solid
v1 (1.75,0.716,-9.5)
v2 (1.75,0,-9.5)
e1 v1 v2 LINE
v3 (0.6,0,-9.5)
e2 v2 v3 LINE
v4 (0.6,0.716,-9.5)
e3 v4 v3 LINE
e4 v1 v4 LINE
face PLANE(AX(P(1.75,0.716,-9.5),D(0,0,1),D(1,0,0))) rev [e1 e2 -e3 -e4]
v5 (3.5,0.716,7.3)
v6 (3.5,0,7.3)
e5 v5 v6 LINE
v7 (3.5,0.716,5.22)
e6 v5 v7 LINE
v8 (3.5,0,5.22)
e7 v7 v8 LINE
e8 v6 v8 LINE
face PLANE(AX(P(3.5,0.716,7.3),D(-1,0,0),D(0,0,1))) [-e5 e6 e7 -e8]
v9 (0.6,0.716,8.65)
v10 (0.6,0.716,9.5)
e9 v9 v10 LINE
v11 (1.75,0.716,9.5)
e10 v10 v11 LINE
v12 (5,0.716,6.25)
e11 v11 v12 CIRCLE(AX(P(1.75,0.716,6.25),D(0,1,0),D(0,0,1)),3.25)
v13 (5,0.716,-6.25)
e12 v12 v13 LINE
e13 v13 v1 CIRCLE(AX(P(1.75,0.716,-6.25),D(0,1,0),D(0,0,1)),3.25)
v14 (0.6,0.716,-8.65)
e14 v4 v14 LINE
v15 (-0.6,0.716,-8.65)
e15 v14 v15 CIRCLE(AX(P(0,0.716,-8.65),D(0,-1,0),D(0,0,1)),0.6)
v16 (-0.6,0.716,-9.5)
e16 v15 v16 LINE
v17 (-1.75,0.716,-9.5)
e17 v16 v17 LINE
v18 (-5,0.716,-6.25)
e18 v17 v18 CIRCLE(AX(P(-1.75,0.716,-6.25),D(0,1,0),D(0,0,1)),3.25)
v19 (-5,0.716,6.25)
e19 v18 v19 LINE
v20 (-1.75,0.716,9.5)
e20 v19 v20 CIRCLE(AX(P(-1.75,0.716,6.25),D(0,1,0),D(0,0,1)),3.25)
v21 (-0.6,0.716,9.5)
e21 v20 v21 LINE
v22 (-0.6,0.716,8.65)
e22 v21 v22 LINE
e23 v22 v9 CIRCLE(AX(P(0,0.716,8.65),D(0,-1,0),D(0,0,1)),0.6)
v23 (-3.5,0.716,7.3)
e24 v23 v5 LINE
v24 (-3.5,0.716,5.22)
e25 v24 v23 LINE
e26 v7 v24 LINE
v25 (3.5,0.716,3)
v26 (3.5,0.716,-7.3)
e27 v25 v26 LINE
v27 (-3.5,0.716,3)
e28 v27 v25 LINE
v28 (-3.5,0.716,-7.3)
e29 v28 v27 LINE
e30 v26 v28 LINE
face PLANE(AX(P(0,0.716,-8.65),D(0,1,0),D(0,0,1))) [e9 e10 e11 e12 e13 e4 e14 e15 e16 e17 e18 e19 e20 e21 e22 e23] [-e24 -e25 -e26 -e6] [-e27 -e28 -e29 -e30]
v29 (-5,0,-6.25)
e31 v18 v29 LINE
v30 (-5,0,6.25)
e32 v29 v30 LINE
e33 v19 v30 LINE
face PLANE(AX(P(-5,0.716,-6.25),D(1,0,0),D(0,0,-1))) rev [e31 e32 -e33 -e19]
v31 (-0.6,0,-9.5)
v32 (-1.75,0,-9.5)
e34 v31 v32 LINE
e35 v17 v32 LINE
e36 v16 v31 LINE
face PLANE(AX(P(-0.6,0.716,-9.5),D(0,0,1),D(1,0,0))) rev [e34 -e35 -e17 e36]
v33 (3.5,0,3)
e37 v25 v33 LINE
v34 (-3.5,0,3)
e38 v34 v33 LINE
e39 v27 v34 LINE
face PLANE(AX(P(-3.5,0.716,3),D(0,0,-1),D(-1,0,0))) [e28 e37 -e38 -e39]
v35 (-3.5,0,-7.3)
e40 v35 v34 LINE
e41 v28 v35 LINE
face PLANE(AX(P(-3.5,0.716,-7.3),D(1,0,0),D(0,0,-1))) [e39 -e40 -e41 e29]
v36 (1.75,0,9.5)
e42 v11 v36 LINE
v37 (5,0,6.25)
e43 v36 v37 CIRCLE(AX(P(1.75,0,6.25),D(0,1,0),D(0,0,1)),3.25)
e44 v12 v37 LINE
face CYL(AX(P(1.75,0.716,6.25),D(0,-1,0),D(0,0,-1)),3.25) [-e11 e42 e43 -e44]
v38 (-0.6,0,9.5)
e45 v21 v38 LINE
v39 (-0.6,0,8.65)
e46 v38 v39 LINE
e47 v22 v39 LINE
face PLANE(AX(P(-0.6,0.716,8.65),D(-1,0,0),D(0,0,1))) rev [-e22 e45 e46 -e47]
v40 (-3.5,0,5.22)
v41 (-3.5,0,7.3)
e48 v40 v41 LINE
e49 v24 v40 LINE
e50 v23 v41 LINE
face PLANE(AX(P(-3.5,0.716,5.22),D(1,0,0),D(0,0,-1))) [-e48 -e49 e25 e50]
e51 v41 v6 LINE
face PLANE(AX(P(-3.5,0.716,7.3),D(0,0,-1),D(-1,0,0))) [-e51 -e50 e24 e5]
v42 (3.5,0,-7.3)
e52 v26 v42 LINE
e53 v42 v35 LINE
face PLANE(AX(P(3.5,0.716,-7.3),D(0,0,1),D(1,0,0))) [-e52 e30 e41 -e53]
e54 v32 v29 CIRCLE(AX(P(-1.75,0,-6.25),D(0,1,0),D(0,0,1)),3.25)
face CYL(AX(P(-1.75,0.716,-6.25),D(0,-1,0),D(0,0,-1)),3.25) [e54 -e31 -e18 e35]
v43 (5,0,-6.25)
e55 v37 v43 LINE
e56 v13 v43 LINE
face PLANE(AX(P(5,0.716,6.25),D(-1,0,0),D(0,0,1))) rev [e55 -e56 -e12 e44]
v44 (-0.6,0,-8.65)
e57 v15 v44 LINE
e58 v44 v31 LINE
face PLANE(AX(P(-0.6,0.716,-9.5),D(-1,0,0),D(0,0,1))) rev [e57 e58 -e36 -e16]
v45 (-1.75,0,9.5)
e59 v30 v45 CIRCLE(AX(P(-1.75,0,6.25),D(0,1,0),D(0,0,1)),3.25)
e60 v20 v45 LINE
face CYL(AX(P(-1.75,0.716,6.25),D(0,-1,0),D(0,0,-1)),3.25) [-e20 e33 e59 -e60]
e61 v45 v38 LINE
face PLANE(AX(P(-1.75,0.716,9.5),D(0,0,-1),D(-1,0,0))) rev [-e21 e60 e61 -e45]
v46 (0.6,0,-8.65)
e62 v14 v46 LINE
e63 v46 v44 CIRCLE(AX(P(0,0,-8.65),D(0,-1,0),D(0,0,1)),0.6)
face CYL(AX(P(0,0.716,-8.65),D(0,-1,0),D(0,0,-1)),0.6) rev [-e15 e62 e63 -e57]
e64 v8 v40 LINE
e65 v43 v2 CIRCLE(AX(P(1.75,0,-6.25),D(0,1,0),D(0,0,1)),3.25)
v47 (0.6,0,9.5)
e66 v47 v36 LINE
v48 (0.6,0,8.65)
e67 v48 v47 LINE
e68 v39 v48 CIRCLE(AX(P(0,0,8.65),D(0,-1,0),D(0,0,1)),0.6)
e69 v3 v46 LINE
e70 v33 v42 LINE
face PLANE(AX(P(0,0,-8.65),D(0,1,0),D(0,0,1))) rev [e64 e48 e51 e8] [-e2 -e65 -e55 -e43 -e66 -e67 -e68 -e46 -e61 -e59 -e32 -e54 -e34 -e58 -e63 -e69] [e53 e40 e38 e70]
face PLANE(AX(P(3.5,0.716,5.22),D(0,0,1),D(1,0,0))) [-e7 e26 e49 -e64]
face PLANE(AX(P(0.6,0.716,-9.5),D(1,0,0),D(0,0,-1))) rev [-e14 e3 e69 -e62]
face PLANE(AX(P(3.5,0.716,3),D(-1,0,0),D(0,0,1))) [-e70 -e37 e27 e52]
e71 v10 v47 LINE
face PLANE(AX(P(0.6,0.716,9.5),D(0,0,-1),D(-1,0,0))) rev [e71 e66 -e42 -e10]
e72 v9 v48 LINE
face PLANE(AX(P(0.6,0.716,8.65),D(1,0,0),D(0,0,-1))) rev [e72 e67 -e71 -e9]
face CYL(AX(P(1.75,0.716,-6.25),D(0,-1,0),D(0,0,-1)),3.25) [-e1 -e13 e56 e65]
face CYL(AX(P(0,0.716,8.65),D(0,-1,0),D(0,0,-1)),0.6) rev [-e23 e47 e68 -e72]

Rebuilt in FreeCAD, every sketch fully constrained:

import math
import FreeCAD as App
import Part
import Sketcher

V = App.Vector
Q = App.Units.Quantity


def add_polygon(sketch, points):
    """Adds a closed chain of lines whose ends are joined by coincident constraints."""
    first, n = sketch.GeometryCount, len(points)
    for a, b in zip(points, points[1:] + points[:1]):
        sketch.addGeometry(Part.LineSegment(App.Vector(*a, 0), App.Vector(*b, 0)), False)
    for i in range(n):
        sketch.addConstraint(Sketcher.Constraint("Coincident", first + i, 2, first + (i + 1) % n, 1))

doc = App.newDocument("Part")
params = doc.addObject("Spreadsheet::Sheet", "Params")
for row, (alias, value) in enumerate([
    ("sketch1_radius", "0.6 mm"),
    ("sketch1_width", "7 mm"),
    ("sketch1_radius2", "3.25 mm"),
    ("sketch1_height", "12.5 mm"),
    ("sketch1_height2", "10.3 mm"),
    ("pad1_length", "0.716 mm"),
], start=1):
    params.set(f"A{row}", alias)
    params.set(f"B{row}", "=" + value)
    params.setAlias(f"B{row}", alias)

body = doc.addObject("PartDesign::Body", "Body")

sketch1 = doc.addObject("Sketcher::SketchObject", "Sketch")
body.addObject(sketch1)
sketch1.AttachmentSupport = (doc.XZ_Plane, [""])
sketch1.MapMode = "FlatFace"
sketch1.addGeometry(Part.LineSegment(V(-0.6, -9.5, 0), V(-1.8, -9.5, 0)), False)
sketch1.addGeometry(Part.ArcOfCircle(Part.Circle(V(-1.8, -6.2, 0), V(0, 0, 1), 3.2), math.radians(180), math.radians(270)), False)
sketch1.addGeometry(Part.LineSegment(V(-5, -6.2, 0), V(-5, 6.2, 0)), False)
sketch1.addGeometry(Part.ArcOfCircle(Part.Circle(V(-1.8, 6.2, 0), V(0, 0, 1), 3.2), math.radians(90), math.radians(180)), False)
sketch1.addGeometry(Part.LineSegment(V(-1.8, 9.5, 0), V(-0.6, 9.5, 0)), False)
sketch1.addGeometry(Part.LineSegment(V(-0.6, 9.5, 0), V(-0.6, 8.7, 0)), False)
sketch1.addGeometry(Part.ArcOfCircle(Part.Circle(V(0, 8.7, 0), V(0, 0, 1), 0.6), math.radians(180), math.radians(360)), False)
sketch1.addGeometry(Part.LineSegment(V(0.6, 8.7, 0), V(0.6, 9.5, 0)), False)
sketch1.addGeometry(Part.LineSegment(V(0.6, 9.5, 0), V(1.8, 9.5, 0)), False)
sketch1.addGeometry(Part.ArcOfCircle(Part.Circle(V(1.8, 6.2, 0), V(0, 0, 1), 3.2), math.radians(0), math.radians(90)), False)
sketch1.addGeometry(Part.LineSegment(V(5, 6.2, 0), V(5, -6.2, 0)), False)
sketch1.addGeometry(Part.ArcOfCircle(Part.Circle(V(1.8, -6.2, 0), V(0, 0, 1), 3.2), math.radians(-90), math.radians(0)), False)
sketch1.addGeometry(Part.LineSegment(V(1.8, -9.5, 0), V(0.6, -9.5, 0)), False)
sketch1.addGeometry(Part.LineSegment(V(0.6, -9.5, 0), V(0.6, -8.7, 0)), False)
sketch1.addGeometry(Part.ArcOfCircle(Part.Circle(V(0, -8.7, 0), V(0, 0, 1), 0.6), math.radians(0), math.radians(180)), False)
sketch1.addGeometry(Part.LineSegment(V(-0.6, -8.7, 0), V(-0.6, -9.5, 0)), False)
add_polygon(sketch1, [(3.5, 7.3), (-3.5, 7.3), (-3.5, 5.2), (3.5, 5.2)])
add_polygon(sketch1, [(3.5, 3), (-3.5, 3), (-3.5, -7.3), (3.5, -7.3)])
sketch1.addConstraint(Sketcher.Constraint("Tangent", 0, 2, 1, 2))
sketch1.addConstraint(Sketcher.Constraint("Tangent", 1, 1, 2, 1))
sketch1.addConstraint(Sketcher.Constraint("Tangent", 2, 2, 3, 2))
sketch1.addConstraint(Sketcher.Constraint("Tangent", 3, 1, 4, 1))
sketch1.addConstraint(Sketcher.Constraint("Coincident", 4, 2, 5, 1))
sketch1.addConstraint(Sketcher.Constraint("Tangent", 5, 2, 6, 1))
sketch1.addConstraint(Sketcher.Constraint("Tangent", 6, 2, 7, 1))
sketch1.addConstraint(Sketcher.Constraint("Coincident", 7, 2, 8, 1))
sketch1.addConstraint(Sketcher.Constraint("Tangent", 8, 2, 9, 2))
sketch1.addConstraint(Sketcher.Constraint("Tangent", 9, 1, 10, 1))
sketch1.addConstraint(Sketcher.Constraint("Tangent", 10, 2, 11, 2))
sketch1.addConstraint(Sketcher.Constraint("Tangent", 11, 1, 12, 1))
sketch1.addConstraint(Sketcher.Constraint("Coincident", 12, 2, 13, 1))
sketch1.addConstraint(Sketcher.Constraint("Tangent", 13, 2, 14, 1))
sketch1.addConstraint(Sketcher.Constraint("Tangent", 14, 2, 15, 1))
sketch1.addConstraint(Sketcher.Constraint("Coincident", 15, 2, 0, 1))
sketch1.addConstraint(Sketcher.Constraint("Horizontal", 0))
sketch1.addConstraint(Sketcher.Constraint("Vertical", 2))
sketch1.addConstraint(Sketcher.Constraint("Horizontal", 4))
sketch1.addConstraint(Sketcher.Constraint("Vertical", 5))
sketch1.addConstraint(Sketcher.Constraint("Vertical", 7))
sketch1.addConstraint(Sketcher.Constraint("Horizontal", 8))
sketch1.addConstraint(Sketcher.Constraint("Vertical", 10))
sketch1.addConstraint(Sketcher.Constraint("Horizontal", 12))
sketch1.addConstraint(Sketcher.Constraint("Vertical", 13))
sketch1.addConstraint(Sketcher.Constraint("Vertical", 15))
sketch1.addConstraint(Sketcher.Constraint("Horizontal", 16))
sketch1.addConstraint(Sketcher.Constraint("Vertical", 17))
sketch1.addConstraint(Sketcher.Constraint("Horizontal", 18))
sketch1.addConstraint(Sketcher.Constraint("Vertical", 19))
sketch1.addConstraint(Sketcher.Constraint("Horizontal", 20))
sketch1.addConstraint(Sketcher.Constraint("Vertical", 21))
sketch1.addConstraint(Sketcher.Constraint("Horizontal", 22))
sketch1.addConstraint(Sketcher.Constraint("Vertical", 23))
sketch1.addConstraint(Sketcher.Constraint("Equal", 1, 3))
sketch1.addConstraint(Sketcher.Constraint("Equal", 3, 9))
sketch1.addConstraint(Sketcher.Constraint("Equal", 9, 11))
sketch1.addConstraint(Sketcher.Constraint("Equal", 6, 14))
sketch1.addConstraint(Sketcher.Constraint("Symmetric", 1, 3, 9, 3, -1, 1))
sketch1.addConstraint(Sketcher.Constraint("Symmetric", 6, 3, 14, 3, -1, 1))
sketch1.addConstraint(Sketcher.Constraint("Symmetric", 19, 2, 21, 2, -1, 1))
sketch1.addConstraint(Sketcher.Constraint("Symmetric", 4, 2, 7, 2, -2))
sketch1.addConstraint(Sketcher.Constraint("Horizontal", 1, 3, 11, 3))
sketch1.addConstraint(Sketcher.Constraint("Vertical", 17, 2, 20, 2))
sketch1.addConstraint(Sketcher.Constraint("Vertical", 19, 2, 22, 2))
sketch1.addConstraint(Sketcher.Constraint("Radius", 6, Q("0.6 mm")))
sketch1.addConstraint(Sketcher.Constraint("DistanceX", 16, 2, 16, 1, Q("7 mm")))
sketch1.addConstraint(Sketcher.Constraint("Radius", 1, Q("3.25 mm")))
sketch1.addConstraint(Sketcher.Constraint("DistanceY", 2, 1, 2, 2, Q("12.5 mm")))
sketch1.addConstraint(Sketcher.Constraint("DistanceY", 21, 2, 21, 1, Q("10.3 mm")))
sketch1.addConstraint(Sketcher.Constraint("DistanceX", 1, 1, -1, 1, Q("5 mm")))
sketch1.addConstraint(Sketcher.Constraint("DistanceY", -1, 1, 20, 2, Q("3 mm")))
sketch1.addConstraint(Sketcher.Constraint("DistanceY", 5, 2, 5, 1, Q("0.85 mm")))
sketch1.addConstraint(Sketcher.Constraint("DistanceY", 17, 2, 17, 1, Q("2.08 mm")))
sketch1.setExpression("Constraints[53]", "Params.sketch1_radius")
sketch1.setExpression("Constraints[54]", "Params.sketch1_width")
sketch1.setExpression("Constraints[55]", "Params.sketch1_radius2")
sketch1.setExpression("Constraints[56]", "Params.sketch1_height")
sketch1.setExpression("Constraints[57]", "Params.sketch1_height2")
pad1 = doc.addObject("PartDesign::Pad", "Pad")
body.addObject(pad1)
pad1.Profile = sketch1
pad1.setExpression("Length", "Params.pad1_length")
pad1.Reversed = True

doc.recompute()
